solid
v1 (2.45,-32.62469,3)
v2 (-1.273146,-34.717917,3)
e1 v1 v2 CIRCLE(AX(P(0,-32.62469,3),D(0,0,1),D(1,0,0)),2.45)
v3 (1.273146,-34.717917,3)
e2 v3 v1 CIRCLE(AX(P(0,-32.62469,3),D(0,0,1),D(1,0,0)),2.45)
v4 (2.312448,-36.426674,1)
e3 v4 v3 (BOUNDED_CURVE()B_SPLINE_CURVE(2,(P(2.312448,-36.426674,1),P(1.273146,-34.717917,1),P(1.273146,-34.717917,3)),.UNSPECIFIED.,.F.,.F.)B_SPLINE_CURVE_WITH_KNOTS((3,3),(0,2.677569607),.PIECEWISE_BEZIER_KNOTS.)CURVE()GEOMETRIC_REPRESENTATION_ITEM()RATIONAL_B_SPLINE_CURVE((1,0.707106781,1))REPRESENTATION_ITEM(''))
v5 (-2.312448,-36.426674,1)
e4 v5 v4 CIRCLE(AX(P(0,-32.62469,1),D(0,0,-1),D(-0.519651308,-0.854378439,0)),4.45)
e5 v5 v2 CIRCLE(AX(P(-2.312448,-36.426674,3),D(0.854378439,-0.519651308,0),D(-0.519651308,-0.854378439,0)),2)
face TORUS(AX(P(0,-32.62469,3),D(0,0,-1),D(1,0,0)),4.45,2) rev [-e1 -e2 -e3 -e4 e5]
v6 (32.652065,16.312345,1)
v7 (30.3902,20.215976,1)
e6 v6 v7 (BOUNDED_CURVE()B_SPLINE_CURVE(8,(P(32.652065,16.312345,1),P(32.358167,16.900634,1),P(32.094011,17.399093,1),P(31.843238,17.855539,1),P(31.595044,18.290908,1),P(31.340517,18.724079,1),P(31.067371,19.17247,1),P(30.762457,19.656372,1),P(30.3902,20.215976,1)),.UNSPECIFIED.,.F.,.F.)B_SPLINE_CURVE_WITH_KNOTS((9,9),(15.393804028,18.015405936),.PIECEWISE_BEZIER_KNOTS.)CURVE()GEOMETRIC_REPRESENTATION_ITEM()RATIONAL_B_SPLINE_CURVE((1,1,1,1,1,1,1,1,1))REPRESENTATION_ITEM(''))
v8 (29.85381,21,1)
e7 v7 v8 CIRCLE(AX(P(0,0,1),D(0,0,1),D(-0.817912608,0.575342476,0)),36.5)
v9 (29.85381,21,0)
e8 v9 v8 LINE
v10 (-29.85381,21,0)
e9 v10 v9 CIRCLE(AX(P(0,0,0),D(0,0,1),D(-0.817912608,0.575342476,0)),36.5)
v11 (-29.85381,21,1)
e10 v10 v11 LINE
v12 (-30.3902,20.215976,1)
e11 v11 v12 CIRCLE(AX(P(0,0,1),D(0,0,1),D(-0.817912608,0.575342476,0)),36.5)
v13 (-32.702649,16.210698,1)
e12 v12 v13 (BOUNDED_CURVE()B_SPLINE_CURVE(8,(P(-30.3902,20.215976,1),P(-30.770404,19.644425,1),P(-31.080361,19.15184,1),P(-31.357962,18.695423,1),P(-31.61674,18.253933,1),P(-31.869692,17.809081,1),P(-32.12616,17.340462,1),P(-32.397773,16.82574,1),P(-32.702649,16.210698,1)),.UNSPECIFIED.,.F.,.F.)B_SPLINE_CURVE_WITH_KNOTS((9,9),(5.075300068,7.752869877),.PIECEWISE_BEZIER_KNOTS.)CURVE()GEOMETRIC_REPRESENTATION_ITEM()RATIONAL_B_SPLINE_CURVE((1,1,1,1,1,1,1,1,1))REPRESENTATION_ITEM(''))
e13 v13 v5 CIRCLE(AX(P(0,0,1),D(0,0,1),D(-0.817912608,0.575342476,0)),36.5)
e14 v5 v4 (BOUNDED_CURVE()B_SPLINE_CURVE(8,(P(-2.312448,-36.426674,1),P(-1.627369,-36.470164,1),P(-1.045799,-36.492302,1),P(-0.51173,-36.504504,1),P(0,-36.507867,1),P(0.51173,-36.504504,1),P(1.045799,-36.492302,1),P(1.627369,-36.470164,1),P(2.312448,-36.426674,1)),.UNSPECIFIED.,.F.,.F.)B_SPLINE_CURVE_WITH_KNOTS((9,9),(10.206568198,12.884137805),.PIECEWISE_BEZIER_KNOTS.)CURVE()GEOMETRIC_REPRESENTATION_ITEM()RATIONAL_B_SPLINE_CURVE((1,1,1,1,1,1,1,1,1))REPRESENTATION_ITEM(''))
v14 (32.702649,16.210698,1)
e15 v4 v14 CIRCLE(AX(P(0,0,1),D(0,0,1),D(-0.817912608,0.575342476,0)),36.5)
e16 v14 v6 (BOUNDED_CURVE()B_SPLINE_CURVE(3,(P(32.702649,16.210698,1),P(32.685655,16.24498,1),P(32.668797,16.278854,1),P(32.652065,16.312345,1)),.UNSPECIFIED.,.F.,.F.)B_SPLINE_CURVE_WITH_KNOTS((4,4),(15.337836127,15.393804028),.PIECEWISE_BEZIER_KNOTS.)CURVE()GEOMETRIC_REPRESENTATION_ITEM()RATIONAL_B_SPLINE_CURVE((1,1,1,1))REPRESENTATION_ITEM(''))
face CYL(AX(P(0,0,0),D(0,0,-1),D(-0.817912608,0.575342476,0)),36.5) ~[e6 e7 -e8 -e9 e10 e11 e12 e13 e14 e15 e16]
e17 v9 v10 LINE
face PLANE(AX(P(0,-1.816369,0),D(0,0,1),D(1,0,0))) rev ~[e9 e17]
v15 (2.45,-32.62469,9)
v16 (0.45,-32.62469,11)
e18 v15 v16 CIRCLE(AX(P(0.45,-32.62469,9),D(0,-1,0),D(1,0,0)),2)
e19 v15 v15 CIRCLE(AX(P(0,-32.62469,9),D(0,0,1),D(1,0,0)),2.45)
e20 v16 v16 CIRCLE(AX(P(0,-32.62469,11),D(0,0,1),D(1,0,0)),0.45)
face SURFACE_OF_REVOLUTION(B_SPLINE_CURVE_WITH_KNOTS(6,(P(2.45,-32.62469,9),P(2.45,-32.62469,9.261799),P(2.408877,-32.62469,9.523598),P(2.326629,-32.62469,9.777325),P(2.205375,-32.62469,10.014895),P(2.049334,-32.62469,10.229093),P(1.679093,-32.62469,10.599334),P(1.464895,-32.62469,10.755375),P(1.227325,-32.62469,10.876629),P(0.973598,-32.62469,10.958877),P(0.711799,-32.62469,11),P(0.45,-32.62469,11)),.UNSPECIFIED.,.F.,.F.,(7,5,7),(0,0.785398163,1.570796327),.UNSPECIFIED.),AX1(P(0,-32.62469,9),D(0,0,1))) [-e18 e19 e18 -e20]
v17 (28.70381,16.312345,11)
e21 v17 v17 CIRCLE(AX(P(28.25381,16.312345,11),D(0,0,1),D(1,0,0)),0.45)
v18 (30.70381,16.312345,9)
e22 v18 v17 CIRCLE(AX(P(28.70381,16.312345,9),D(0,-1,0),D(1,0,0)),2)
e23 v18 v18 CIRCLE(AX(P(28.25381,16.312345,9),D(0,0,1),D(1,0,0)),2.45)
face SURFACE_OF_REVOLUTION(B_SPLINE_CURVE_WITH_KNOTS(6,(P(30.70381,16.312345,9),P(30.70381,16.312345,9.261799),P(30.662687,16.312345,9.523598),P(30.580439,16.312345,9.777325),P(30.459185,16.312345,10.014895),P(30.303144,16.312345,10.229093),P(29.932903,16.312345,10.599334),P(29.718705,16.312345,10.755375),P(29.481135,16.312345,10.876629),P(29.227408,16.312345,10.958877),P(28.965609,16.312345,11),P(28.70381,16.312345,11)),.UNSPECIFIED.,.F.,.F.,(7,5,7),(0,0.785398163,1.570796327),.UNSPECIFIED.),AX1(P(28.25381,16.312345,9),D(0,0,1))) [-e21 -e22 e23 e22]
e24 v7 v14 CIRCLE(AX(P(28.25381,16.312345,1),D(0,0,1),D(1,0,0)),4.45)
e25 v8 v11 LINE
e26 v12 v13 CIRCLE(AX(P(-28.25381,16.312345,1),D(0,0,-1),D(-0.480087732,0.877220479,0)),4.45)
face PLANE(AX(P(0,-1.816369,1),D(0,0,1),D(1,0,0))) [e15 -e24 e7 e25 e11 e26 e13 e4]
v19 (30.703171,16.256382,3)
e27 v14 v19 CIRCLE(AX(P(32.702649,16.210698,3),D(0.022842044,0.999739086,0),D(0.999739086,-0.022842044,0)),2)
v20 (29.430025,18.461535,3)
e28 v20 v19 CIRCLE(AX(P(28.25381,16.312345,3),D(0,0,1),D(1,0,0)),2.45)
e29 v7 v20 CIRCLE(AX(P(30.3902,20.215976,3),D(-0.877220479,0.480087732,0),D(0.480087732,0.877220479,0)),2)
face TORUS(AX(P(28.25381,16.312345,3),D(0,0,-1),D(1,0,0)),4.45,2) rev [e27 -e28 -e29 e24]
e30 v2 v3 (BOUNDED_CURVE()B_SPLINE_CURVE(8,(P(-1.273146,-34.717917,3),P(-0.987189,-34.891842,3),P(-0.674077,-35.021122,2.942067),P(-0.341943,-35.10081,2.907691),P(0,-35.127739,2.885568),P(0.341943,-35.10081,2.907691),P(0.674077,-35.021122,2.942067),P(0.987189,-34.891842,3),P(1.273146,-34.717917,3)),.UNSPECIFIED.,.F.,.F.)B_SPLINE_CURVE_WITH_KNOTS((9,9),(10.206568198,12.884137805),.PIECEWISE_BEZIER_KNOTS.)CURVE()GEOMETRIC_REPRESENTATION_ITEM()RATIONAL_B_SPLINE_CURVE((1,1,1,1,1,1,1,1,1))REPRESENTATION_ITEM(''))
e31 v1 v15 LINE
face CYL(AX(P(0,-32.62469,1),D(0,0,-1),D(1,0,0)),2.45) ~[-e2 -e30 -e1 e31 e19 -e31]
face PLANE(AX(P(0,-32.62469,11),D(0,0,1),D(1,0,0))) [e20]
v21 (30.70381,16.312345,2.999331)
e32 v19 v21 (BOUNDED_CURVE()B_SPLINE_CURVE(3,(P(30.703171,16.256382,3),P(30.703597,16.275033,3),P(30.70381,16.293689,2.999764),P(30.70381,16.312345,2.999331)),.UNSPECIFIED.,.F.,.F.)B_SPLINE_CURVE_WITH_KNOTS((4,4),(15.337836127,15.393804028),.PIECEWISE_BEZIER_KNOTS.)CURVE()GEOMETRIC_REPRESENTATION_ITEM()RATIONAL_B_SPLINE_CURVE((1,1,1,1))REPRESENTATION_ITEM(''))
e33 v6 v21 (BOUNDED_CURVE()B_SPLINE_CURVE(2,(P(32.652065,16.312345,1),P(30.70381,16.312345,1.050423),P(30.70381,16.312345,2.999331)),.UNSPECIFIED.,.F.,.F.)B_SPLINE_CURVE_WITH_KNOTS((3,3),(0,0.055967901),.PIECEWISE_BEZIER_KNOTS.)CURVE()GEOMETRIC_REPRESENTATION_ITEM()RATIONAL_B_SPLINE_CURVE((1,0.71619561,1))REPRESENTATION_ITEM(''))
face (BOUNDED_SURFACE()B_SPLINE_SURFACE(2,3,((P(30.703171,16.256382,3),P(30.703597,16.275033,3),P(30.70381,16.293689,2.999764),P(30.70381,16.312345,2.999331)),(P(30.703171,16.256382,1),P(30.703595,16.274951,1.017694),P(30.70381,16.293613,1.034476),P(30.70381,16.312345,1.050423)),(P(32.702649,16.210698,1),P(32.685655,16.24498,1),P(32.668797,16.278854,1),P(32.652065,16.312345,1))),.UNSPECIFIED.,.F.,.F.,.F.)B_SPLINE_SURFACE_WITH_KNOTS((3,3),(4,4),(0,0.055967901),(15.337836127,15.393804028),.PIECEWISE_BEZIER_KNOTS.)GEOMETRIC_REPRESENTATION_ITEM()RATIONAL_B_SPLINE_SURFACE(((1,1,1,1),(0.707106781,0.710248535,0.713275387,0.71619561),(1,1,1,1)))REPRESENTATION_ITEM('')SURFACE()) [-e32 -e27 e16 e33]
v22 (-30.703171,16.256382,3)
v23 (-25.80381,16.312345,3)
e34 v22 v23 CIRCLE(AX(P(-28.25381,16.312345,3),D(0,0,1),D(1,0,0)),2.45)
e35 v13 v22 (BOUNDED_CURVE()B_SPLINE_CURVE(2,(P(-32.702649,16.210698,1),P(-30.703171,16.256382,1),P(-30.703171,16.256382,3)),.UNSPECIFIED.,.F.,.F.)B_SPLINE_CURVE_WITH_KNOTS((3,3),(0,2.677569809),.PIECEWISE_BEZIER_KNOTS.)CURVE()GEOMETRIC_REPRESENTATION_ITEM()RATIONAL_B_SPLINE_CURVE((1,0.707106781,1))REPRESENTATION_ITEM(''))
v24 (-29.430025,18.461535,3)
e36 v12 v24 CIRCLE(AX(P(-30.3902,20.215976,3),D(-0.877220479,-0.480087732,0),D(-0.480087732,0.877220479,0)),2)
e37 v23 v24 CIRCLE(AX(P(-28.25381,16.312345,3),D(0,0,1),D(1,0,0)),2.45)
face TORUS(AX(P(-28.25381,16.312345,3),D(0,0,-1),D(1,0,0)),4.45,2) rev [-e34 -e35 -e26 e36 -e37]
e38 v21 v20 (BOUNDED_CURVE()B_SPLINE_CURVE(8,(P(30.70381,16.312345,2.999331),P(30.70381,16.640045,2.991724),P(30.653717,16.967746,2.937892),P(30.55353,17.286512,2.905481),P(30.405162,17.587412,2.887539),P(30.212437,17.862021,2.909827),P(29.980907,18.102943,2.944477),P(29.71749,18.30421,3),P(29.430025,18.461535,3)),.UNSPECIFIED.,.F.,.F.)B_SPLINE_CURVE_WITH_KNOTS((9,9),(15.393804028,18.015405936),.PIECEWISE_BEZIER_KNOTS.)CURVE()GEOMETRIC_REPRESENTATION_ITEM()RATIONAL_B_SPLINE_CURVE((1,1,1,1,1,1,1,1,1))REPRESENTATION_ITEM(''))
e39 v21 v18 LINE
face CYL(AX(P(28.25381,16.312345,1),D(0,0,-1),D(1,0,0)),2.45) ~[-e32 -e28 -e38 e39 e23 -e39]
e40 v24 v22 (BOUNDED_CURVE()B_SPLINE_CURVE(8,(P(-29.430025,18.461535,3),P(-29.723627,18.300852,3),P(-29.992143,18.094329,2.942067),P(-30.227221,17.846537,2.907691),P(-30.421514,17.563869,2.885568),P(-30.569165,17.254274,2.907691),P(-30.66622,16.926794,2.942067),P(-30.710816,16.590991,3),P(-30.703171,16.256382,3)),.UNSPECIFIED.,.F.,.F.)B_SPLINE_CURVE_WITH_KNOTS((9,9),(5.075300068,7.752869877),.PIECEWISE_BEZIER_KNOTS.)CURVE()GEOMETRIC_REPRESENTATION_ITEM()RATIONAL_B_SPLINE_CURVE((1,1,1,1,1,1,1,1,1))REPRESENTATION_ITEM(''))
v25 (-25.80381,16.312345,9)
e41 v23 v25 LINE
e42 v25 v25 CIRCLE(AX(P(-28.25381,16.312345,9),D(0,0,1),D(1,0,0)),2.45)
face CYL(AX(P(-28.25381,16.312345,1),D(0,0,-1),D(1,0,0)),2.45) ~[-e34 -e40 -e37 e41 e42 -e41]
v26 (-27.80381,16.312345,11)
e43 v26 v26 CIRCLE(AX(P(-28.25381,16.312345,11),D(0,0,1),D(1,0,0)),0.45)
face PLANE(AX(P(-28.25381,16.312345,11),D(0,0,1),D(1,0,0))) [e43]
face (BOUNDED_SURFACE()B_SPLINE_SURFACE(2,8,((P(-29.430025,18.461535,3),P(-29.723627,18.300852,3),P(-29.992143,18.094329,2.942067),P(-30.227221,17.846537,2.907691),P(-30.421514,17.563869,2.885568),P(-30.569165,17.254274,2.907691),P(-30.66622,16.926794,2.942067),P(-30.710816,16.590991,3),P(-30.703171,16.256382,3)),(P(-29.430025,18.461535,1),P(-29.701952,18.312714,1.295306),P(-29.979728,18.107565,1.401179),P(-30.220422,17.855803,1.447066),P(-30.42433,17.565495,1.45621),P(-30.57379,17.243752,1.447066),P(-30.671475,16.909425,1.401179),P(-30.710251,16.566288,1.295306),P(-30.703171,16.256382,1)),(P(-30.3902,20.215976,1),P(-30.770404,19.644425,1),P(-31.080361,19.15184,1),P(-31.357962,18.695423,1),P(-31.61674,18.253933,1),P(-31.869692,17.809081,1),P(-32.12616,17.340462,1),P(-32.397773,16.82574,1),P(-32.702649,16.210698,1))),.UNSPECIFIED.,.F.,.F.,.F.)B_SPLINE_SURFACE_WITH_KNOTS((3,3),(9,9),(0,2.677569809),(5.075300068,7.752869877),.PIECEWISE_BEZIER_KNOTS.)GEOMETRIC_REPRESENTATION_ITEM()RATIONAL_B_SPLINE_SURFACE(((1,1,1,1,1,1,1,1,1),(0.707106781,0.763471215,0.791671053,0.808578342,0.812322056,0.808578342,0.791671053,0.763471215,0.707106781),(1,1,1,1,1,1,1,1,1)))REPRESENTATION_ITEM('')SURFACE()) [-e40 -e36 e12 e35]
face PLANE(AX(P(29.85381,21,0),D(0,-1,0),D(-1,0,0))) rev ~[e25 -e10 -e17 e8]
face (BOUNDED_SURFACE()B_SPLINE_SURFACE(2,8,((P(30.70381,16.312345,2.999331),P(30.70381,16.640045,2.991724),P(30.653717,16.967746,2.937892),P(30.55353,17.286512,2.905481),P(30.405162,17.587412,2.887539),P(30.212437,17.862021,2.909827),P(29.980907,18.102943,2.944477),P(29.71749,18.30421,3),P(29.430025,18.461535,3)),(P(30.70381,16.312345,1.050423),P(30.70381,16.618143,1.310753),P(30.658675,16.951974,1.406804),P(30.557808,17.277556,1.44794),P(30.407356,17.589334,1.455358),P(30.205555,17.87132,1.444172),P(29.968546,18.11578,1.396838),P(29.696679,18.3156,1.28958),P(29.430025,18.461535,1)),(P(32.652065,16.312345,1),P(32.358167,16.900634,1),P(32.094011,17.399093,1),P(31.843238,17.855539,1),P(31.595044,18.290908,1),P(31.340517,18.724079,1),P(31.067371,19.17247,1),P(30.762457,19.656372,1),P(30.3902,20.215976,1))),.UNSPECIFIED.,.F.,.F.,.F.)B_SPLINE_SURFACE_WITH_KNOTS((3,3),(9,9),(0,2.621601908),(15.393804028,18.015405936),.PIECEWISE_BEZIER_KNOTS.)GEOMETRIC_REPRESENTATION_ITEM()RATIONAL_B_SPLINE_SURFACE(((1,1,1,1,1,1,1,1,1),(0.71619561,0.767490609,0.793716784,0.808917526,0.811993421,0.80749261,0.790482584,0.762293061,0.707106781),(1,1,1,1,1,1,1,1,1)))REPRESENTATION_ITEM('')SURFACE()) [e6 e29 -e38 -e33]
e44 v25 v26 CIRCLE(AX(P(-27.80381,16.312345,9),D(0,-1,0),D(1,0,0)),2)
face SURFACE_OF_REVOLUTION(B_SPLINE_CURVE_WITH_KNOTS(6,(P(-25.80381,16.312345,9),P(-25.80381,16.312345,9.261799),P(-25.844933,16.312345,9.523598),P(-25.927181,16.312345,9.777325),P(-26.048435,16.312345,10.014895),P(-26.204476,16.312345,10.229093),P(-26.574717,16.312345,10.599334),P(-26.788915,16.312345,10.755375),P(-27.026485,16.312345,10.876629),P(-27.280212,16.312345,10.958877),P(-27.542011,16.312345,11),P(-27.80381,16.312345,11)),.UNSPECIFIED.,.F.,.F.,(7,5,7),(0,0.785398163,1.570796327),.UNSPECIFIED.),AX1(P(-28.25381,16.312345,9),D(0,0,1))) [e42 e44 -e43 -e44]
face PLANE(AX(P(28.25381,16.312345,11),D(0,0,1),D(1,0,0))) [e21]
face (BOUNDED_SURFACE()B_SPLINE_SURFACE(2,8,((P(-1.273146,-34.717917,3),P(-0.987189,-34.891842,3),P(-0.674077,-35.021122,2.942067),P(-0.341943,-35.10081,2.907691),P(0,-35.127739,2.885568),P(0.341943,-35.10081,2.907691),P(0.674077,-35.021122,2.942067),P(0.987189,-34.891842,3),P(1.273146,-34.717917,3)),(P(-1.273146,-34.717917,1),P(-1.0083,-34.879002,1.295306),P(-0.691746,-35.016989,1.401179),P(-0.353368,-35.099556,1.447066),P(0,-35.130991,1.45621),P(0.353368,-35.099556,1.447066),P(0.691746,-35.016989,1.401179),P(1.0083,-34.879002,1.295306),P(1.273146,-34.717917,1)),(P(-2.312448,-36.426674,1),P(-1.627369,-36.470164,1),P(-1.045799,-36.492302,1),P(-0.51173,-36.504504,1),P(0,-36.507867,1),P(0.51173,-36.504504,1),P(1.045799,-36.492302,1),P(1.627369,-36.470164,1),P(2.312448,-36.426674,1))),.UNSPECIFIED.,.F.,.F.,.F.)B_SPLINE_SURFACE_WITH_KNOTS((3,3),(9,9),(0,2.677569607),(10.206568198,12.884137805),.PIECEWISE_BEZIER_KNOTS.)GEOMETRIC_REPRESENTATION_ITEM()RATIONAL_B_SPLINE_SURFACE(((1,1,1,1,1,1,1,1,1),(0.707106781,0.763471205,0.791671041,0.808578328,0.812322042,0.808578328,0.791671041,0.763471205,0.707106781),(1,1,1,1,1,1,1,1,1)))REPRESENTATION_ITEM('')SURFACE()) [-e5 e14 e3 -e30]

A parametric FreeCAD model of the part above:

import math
import FreeCAD as App
import Part
import Sketcher
Q = App.Units.Quantity


def edges_at(feature, points):
    """Names of the edges that pass closest to the given points."""
    edges = feature.Shape.Edges
    near = lambda p: min(range(len(edges)), key=lambda i: edges[i].distToShape(Part.Vertex(*p))[0])
    return sorted({f"Edge{near(p) + 1}" for p in points})

doc = App.newDocument("Part")
body = doc.addObject("PartDesign::Body", "Body")

sketch1 = body.newObject("Sketcher::SketchObject", "Sketch")
sketch1.AttachmentSupport = (doc.getObject("XY_Plane"), [""])
sketch1.MapMode = "FlatFace"
sketch1.addGeometry([
    Part.LineSegment(App.Vector(29.85381, 21, 0), App.Vector(-29.85381, 21, 0)),
    Part.ArcOfCircle(Part.Circle(App.Vector(0, 0, 0), App.Vector(0, 0, 1), 36.5), math.radians(144.87638), math.radians(395.12362)),
], False)
sketch1.addConstraint([
    Sketcher.Constraint("Coincident", 0, 1, 1, 2),
    Sketcher.Constraint("Coincident", 1, 1, 0, 2),
    Sketcher.Constraint("Horizontal", 0),
    Sketcher.Constraint("Coincident", 1, 3, -1, 1),
    Sketcher.Constraint("Radius", 1, Q("36.5 mm")),
    Sketcher.Constraint("DistanceY", -1, 1, 0, 1, Q("21 mm")),
])
pad1 = body.newObject("PartDesign::Pad", "Pad")
pad1.Profile = sketch1
pad1.Length = 1

sketch2 = body.newObject("Sketcher::SketchObject", "Sketch001")
sketch2.AttachmentSupport = (doc.getObject("XY_Plane"), [""])
sketch2.MapMode = "FlatFace"
sketch2.AttachmentOffset = App.Placement(App.Vector(0, 0, 1), App.Rotation())
sketch2.addGeometry([
    Part.Circle(App.Vector(-28.25381, 16.312345, 0), App.Vector(0, 0, 1), 2.45),
    Part.Circle(App.Vector(28.25381, 16.312345, 0), App.Vector(0, 0, 1), 2.45),
    Part.Circle(App.Vector(0, -32.62469, 0), App.Vector(0, 0, 1), 2.45),
], False)
sketch2.addConstraint([
    Sketcher.Constraint("Equal", 0, 1),
    Sketcher.Constraint("Equal", 1, 2),
    Sketcher.Constraint("Symmetric", 0, 3, 1, 3, -2),
    Sketcher.Constraint("PointOnObject", 2, 3, -2),
    Sketcher.Constraint("Diameter", 0, Q("4.9 mm")),
    Sketcher.Constraint("DistanceX", 0, 3, -1, 1, Q("28.25381 mm")),
    Sketcher.Constraint("DistanceY", 2, 3, -1, 1, Q("32.62469 mm")),
    Sketcher.Constraint("DistanceY", -1, 1, 0, 3, Q("16.312345 mm")),
])
pad2 = body.newObject("PartDesign::Pad", "Pad001")
pad2.Profile = sketch2
pad2.Length = 10
doc.recompute()

fillet = body.newObject("PartDesign::Fillet", "Fillet")
fillet.Base = (pad2, edges_at(pad2, [
    (-30.704, 16.312, 11),
    (25.804, 16.312, 11),
    (-2.45, -32.625, 11),
    (-30.704, 16.312, 1),
    (25.804, 16.312, 1),
    (-2.45, -32.625, 1),
]))
fillet.Radius = 2

doc.recompute()
